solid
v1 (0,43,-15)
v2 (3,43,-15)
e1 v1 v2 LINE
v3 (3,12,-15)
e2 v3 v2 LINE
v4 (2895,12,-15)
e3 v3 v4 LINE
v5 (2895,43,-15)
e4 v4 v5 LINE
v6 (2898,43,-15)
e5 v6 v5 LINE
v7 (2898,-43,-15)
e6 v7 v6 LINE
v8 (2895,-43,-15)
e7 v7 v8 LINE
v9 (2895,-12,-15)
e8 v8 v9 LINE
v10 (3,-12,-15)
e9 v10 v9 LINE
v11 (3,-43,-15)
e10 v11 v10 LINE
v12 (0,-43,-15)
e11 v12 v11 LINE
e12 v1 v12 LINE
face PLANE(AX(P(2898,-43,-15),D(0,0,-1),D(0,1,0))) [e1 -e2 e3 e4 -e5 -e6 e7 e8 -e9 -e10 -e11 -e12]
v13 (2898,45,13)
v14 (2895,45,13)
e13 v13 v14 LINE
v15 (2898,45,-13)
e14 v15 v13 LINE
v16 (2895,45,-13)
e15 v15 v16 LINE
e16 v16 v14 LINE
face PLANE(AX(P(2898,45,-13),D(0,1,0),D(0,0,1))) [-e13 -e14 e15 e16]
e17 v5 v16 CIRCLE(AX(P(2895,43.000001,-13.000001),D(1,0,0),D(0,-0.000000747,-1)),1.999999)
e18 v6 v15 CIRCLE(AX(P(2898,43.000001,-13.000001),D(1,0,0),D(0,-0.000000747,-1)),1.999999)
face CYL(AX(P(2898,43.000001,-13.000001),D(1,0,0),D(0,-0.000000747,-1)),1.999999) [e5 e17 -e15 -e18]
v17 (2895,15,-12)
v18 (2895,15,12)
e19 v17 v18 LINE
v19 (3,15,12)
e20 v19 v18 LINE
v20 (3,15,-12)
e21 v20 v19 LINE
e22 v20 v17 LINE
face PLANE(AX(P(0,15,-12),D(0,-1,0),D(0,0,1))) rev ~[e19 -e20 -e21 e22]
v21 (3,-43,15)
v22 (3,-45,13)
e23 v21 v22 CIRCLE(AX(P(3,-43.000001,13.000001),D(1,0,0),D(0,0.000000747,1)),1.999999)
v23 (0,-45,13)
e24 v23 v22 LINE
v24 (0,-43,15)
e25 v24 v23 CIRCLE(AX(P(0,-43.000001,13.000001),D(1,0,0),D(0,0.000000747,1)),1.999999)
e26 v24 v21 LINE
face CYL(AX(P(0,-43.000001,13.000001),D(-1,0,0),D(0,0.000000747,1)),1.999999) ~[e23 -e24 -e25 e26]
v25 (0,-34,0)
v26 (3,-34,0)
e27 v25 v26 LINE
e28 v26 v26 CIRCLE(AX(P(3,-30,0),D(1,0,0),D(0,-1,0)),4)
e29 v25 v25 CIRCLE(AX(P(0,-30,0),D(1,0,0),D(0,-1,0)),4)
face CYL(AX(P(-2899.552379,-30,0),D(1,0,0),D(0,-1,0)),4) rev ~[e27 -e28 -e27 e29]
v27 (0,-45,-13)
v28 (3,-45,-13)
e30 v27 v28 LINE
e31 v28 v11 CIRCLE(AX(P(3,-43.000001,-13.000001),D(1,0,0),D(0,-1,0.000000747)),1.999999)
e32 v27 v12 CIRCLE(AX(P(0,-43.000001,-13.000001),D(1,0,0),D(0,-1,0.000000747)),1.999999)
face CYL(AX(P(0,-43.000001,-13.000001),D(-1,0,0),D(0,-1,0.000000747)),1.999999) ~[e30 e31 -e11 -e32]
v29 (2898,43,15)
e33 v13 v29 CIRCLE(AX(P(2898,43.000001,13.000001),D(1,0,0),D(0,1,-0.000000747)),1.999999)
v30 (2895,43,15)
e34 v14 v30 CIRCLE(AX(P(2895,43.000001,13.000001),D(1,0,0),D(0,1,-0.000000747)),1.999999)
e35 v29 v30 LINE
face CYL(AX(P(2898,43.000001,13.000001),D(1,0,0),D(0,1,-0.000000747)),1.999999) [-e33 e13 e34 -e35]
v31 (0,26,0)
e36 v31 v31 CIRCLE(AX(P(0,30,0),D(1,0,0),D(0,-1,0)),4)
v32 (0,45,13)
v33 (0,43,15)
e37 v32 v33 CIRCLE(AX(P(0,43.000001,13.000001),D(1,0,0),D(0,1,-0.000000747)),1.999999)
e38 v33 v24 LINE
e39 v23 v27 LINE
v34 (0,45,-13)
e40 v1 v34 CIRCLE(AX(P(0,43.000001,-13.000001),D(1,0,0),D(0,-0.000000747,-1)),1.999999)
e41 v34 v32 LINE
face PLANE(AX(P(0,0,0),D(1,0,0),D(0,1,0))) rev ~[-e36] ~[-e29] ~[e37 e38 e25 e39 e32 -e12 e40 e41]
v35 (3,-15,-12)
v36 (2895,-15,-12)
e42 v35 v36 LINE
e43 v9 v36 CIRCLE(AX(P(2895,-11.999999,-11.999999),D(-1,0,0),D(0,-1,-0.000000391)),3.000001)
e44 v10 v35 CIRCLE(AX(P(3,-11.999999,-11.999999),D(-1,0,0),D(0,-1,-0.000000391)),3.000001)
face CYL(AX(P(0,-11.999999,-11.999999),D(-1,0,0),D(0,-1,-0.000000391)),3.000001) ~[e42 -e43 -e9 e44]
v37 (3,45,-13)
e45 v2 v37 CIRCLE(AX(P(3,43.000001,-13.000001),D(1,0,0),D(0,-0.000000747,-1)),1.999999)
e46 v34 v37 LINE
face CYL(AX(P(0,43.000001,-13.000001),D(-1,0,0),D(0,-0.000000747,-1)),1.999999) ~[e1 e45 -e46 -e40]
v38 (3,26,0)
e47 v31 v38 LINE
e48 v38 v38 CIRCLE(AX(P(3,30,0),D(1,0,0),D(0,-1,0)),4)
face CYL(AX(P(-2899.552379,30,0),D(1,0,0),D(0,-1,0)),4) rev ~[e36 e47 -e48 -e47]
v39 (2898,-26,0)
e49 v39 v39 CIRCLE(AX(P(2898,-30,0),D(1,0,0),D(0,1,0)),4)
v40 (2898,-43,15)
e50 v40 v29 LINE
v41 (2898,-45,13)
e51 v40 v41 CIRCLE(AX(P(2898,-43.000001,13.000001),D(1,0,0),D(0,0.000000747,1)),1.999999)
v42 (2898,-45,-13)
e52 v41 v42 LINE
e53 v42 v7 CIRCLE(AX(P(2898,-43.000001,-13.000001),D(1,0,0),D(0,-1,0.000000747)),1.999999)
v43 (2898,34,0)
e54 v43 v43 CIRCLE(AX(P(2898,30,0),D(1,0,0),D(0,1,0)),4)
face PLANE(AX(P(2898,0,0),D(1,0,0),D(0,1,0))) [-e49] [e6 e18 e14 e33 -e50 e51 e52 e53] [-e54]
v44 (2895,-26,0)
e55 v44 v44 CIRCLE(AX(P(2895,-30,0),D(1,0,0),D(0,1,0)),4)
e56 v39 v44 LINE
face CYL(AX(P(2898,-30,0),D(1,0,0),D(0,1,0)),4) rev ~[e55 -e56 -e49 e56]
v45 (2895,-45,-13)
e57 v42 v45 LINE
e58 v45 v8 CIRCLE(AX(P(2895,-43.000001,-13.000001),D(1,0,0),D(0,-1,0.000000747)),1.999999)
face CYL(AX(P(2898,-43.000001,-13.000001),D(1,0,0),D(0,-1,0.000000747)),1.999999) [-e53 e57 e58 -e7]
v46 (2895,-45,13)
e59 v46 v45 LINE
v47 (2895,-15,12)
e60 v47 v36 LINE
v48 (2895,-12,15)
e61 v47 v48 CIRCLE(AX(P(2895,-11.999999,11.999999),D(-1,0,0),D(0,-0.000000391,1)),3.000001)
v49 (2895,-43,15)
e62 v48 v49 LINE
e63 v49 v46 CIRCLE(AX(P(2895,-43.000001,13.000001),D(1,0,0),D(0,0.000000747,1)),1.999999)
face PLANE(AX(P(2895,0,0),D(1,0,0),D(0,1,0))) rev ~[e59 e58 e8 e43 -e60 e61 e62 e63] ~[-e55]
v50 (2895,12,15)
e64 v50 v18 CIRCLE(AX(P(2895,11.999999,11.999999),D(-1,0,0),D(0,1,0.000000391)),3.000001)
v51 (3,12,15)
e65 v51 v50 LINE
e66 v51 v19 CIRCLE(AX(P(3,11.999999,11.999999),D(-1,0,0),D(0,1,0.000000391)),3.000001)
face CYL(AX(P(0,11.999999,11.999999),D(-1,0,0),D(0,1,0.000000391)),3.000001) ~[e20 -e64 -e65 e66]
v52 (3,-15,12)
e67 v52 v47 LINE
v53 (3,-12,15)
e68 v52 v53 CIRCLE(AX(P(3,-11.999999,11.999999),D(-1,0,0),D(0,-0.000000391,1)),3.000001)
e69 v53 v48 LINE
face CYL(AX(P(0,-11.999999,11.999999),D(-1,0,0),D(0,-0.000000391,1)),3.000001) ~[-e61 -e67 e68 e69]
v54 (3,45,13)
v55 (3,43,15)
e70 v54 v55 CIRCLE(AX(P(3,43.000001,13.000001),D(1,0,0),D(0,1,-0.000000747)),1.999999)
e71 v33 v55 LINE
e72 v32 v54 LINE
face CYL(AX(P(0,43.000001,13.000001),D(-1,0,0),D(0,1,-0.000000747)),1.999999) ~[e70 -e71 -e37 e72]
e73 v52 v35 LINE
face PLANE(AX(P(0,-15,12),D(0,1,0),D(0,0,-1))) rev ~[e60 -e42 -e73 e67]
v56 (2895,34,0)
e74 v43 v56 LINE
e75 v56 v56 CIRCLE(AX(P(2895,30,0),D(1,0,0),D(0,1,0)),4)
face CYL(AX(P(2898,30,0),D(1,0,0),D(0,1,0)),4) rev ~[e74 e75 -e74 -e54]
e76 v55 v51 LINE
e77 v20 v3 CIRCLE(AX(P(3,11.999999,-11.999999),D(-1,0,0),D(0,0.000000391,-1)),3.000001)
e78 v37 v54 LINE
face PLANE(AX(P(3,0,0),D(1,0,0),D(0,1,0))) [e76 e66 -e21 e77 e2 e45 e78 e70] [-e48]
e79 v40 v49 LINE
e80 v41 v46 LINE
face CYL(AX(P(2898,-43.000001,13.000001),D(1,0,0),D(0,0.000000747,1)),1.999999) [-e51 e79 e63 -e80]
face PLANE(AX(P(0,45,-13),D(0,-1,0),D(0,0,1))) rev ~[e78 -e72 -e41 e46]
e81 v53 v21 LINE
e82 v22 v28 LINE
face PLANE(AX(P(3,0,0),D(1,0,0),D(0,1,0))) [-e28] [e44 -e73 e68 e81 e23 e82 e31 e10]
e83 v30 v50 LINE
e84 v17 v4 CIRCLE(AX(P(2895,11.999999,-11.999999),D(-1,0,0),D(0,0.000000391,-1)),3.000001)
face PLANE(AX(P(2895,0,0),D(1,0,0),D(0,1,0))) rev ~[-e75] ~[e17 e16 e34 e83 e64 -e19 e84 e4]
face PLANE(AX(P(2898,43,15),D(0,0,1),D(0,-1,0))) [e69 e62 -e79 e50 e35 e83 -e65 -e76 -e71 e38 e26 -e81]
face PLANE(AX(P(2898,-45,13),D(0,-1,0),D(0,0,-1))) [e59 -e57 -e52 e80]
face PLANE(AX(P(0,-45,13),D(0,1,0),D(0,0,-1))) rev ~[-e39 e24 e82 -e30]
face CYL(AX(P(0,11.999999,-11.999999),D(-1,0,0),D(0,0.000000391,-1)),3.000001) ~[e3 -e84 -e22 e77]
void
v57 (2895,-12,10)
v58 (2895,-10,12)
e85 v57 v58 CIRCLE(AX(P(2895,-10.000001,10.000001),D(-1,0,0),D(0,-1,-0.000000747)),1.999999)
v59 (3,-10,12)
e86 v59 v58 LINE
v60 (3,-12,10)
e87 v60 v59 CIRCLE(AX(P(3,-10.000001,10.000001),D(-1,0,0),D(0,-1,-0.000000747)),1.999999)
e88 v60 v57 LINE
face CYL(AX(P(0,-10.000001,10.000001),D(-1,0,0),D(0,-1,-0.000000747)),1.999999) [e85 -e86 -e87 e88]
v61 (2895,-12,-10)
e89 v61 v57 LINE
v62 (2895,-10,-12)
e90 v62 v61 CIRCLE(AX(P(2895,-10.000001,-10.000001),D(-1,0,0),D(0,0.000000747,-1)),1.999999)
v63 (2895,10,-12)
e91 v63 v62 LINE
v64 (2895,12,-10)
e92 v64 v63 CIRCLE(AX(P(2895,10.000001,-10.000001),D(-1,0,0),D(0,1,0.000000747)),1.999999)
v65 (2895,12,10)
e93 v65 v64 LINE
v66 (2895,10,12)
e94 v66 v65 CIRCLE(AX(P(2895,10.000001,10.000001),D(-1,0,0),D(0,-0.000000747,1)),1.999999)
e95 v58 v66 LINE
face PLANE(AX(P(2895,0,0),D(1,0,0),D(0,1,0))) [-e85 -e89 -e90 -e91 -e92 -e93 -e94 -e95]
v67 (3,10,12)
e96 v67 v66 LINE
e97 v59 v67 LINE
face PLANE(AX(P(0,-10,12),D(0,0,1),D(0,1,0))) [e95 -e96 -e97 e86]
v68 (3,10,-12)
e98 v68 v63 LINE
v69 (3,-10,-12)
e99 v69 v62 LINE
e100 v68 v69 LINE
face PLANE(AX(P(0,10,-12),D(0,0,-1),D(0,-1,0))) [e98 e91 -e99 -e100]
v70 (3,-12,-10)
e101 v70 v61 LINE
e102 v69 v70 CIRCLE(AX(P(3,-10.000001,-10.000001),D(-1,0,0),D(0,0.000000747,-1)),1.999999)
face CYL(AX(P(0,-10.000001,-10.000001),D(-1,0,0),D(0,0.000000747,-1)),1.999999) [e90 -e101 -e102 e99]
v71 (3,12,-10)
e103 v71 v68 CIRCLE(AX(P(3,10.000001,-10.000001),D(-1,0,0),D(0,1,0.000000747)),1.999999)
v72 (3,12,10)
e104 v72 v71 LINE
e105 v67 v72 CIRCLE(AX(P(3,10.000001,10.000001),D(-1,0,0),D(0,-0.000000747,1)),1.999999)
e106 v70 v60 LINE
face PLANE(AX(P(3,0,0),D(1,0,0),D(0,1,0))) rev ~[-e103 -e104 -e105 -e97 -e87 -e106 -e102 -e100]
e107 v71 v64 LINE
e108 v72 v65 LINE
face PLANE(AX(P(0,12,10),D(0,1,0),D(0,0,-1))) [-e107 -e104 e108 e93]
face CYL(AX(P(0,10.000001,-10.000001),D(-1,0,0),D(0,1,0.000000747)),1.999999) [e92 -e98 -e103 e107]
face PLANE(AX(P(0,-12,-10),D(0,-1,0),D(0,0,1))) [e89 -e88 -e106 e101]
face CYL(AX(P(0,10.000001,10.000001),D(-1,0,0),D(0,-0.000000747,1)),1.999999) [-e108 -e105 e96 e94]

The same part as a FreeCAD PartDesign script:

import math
import FreeCAD as App
import Part
import Sketcher

V = App.Vector
Q = App.Units.Quantity

doc = App.newDocument("Part")
body = doc.addObject("PartDesign::Body", "Body")

sketch1 = body.newObject("Sketcher::SketchObject", "Sketch")
sketch1.AttachmentSupport = (doc.getObject("YZ_Plane"), [""])
sketch1.MapMode = "FlatFace"
sketch1.addGeometry(Part.LineSegment(V(-12, -15, 0), V(12, -15, 0)), False)
sketch1.addGeometry(Part.ArcOfCircle(Part.Circle(V(12, -12, 0), V(0, 0, 1), 3), math.radians(-90), math.radians(0)), False)
sketch1.addGeometry(Part.LineSegment(V(15, -12, 0), V(15, 12, 0)), False)
sketch1.addGeometry(Part.ArcOfCircle(Part.Circle(V(12, 12, 0), V(0, 0, 1), 3), math.radians(0), math.radians(90)), False)
sketch1.addGeometry(Part.LineSegment(V(12, 15, 0), V(-12, 15, 0)), False)
sketch1.addGeometry(Part.ArcOfCircle(Part.Circle(V(-12, 12, 0), V(0, 0, 1), 3), math.radians(90), math.radians(180)), False)
sketch1.addGeometry(Part.LineSegment(V(-15, 12, 0), V(-15, -12, 0)), False)
sketch1.addGeometry(Part.ArcOfCircle(Part.Circle(V(-12, -12, 0), V(0, 0, 1), 3), math.radians(-180), math.radians(-90)), False)
sketch1.addGeometry(Part.LineSegment(V(12, 10, 0), V(12, -10, 0)), False)
sketch1.addGeometry(Part.ArcOfCircle(Part.Circle(V(10, -10, 0), V(0, 0, 1), 2), math.radians(-90), math.radians(0)), False)
sketch1.addGeometry(Part.LineSegment(V(10, -12, 0), V(-10, -12, 0)), False)
sketch1.addGeometry(Part.ArcOfCircle(Part.Circle(V(-10, -10, 0), V(0, 0, 1), 2), math.radians(180), math.radians(270)), False)
sketch1.addGeometry(Part.LineSegment(V(-12, -10, 0), V(-12, 10, 0)), False)
sketch1.addGeometry(Part.ArcOfCircle(Part.Circle(V(-10, 10, 0), V(0, 0, 1), 2), math.radians(90), math.radians(180)), False)
sketch1.addGeometry(Part.LineSegment(V(-10, 12, 0), V(10, 12, 0)), False)
sketch1.addGeometry(Part.ArcOfCircle(Part.Circle(V(10, 10, 0), V(0, 0, 1), 2), math.radians(0), math.radians(90)), False)
sketch1.addConstraint(Sketcher.Constraint("Tangent", 0, 2, 1, 1))
sketch1.addConstraint(Sketcher.Constraint("Tangent", 1, 2, 2, 1))
sketch1.addConstraint(Sketcher.Constraint("Tangent", 2, 2, 3, 1))
sketch1.addConstraint(Sketcher.Constraint("Tangent", 3, 2, 4, 1))
sketch1.addConstraint(Sketcher.Constraint("Tangent", 4, 2, 5, 1))
sketch1.addConstraint(Sketcher.Constraint("Tangent", 5, 2, 6, 1))
sketch1.addConstraint(Sketcher.Constraint("Tangent", 6, 2, 7, 1))
sketch1.addConstraint(Sketcher.Constraint("Tangent", 7, 2, 0, 1))
sketch1.addConstraint(Sketcher.Constraint("Tangent", 8, 2, 9, 2))
sketch1.addConstraint(Sketcher.Constraint("Tangent", 9, 1, 10, 1))
sketch1.addConstraint(Sketcher.Constraint("Tangent", 10, 2, 11, 2))
sketch1.addConstraint(Sketcher.Constraint("Tangent", 11, 1, 12, 1))
sketch1.addConstraint(Sketcher.Constraint("Tangent", 12, 2, 13, 2))
sketch1.addConstraint(Sketcher.Constraint("Tangent", 13, 1, 14, 1))
sketch1.addConstraint(Sketcher.Constraint("Tangent", 14, 2, 15, 2))
sketch1.addConstraint(Sketcher.Constraint("Tangent", 15, 1, 8, 1))
sketch1.addConstraint(Sketcher.Constraint("Horizontal", 0))
sketch1.addConstraint(Sketcher.Constraint("Vertical", 2))
sketch1.addConstraint(Sketcher.Constraint("Horizontal", 4))
sketch1.addConstraint(Sketcher.Constraint("Vertical", 6))
sketch1.addConstraint(Sketcher.Constraint("Vertical", 8))
sketch1.addConstraint(Sketcher.Constraint("Horizontal", 10))
sketch1.addConstraint(Sketcher.Constraint("Vertical", 12))
sketch1.addConstraint(Sketcher.Constraint("Horizontal", 14))
sketch1.addConstraint(Sketcher.Constraint("Equal", 1, 3))
sketch1.addConstraint(Sketcher.Constraint("Equal", 3, 5))
sketch1.addConstraint(Sketcher.Constraint("Equal", 5, 7))
sketch1.addConstraint(Sketcher.Constraint("Equal", 9, 11))
sketch1.addConstraint(Sketcher.Constraint("Equal", 11, 13))
sketch1.addConstraint(Sketcher.Constraint("Equal", 13, 15))
sketch1.addConstraint(Sketcher.Constraint("Symmetric", 1, 3, 5, 3, -1, 1))
sketch1.addConstraint(Sketcher.Constraint("Symmetric", 9, 3, 13, 3, -1, 1))
sketch1.addConstraint(Sketcher.Constraint("Horizontal", 6, 2, 9, 1))
sketch1.addConstraint(Sketcher.Constraint("Vertical", 3, 2, 8, 2))
sketch1.addConstraint(Sketcher.Constraint("Equal", 4, 2))
sketch1.addConstraint(Sketcher.Constraint("Radius", 1, Q("3.000001 mm")))
sketch1.addConstraint(Sketcher.Constraint("Radius", 9, Q("1.999999 mm")))
sketch1.addConstraint(Sketcher.Constraint("DistanceX", 0, 1, 0, 2, Q("24 mm")))
pad1 = body.newObject("PartDesign::Pad", "Pad")
pad1.Profile = sketch1
pad1.Length = 2898

sketch2 = body.newObject("Sketcher::SketchObject", "Sketch001")
sketch2.AttachmentSupport = (doc.getObject("YZ_Plane"), [""])
sketch2.MapMode = "FlatFace"
sketch2.addGeometry(Part.ArcOfCircle(Part.Circle(V(43, 13, 0), V(0, 0, 1), 2), math.radians(0), math.radians(90)), False)
sketch2.addGeometry(Part.LineSegment(V(43, 15, 0), V(-43, 15, 0)), False)
sketch2.addGeometry(Part.ArcOfCircle(Part.Circle(V(-43, 13, 0), V(0, 0, 1), 2), math.radians(90), math.radians(180)), False)
sketch2.addGeometry(Part.LineSegment(V(-45, 13, 0), V(-45, -13, 0)), False)
sketch2.addGeometry(Part.ArcOfCircle(Part.Circle(V(-43, -13, 0), V(0, 0, 1), 2), math.radians(180), math.radians(270)), False)
sketch2.addGeometry(Part.LineSegment(V(-43, -15, 0), V(43, -15, 0)), False)
sketch2.addGeometry(Part.ArcOfCircle(Part.Circle(V(43, -13, 0), V(0, 0, 1), 2), math.radians(-90), math.radians(0)), False)
sketch2.addGeometry(Part.LineSegment(V(45, -13, 0), V(45, 13, 0)), False)
sketch2.addConstraint(Sketcher.Constraint("Tangent", 0, 2, 1, 1))
sketch2.addConstraint(Sketcher.Constraint("Tangent", 1, 2, 2, 1))
sketch2.addConstraint(Sketcher.Constraint("Tangent", 2, 2, 3, 1))
sketch2.addConstraint(Sketcher.Constraint("Tangent", 3, 2, 4, 1))
sketch2.addConstraint(Sketcher.Constraint("Tangent", 4, 2, 5, 1))
sketch2.addConstraint(Sketcher.Constraint("Tangent", 5, 2, 6, 1))
sketch2.addConstraint(Sketcher.Constraint("Tangent", 6, 2, 7, 1))
sketch2.addConstraint(Sketcher.Constraint("Tangent", 7, 2, 0, 1))
sketch2.addConstraint(Sketcher.Constraint("Horizontal", 1))
sketch2.addConstraint(Sketcher.Constraint("Vertical", 3))
sketch2.addConstraint(Sketcher.Constraint("Horizontal", 5))
sketch2.addConstraint(Sketcher.Constraint("Vertical", 7))
sketch2.addConstraint(Sketcher.Constraint("Equal", 0, 2))
sketch2.addConstraint(Sketcher.Constraint("Equal", 2, 4))
sketch2.addConstraint(Sketcher.Constraint("Equal", 4, 6))
sketch2.addConstraint(Sketcher.Constraint("Symmetric", 0, 3, 4, 3, -1, 1))
sketch2.addConstraint(Sketcher.Constraint("Radius", 0, Q("1.999999 mm")))
sketch2.addConstraint(Sketcher.Constraint("DistanceX", 1, 2, 1, 1, Q("86 mm")))
sketch2.addConstraint(Sketcher.Constraint("DistanceY", 3, 2, 3, 1, Q("26 mm")))
pad2 = body.newObject("PartDesign::Pad", "Pad001")
pad2.Profile = sketch2
pad2.Length = 3

sketch3 = body.newObject("Sketcher::SketchObject", "Sketch002")
sketch3.AttachmentSupport = (doc.getObject("YZ_Plane"), [""])
sketch3.MapMode = "FlatFace"
sketch3.addGeometry(Part.Circle(V(30, 0, 0), V(0, 0, 1), 4), False)
sketch3.addGeometry(Part.Circle(V(-30, 0, 0), V(0, 0, 1), 4), False)
sketch3.addConstraint(Sketcher.Constraint("Equal", 0, 1))
sketch3.addConstraint(Sketcher.Constraint("Symmetric", 0, 3, 1, 3, -1, 1))
sketch3.addConstraint(Sketcher.Constraint("PointOnObject", 0, 3, -1))
sketch3.addConstraint(Sketcher.Constraint("Diameter", 0, Q("8 mm")))
sketch3.addConstraint(Sketcher.Constraint("DistanceX", -1, 1, 0, 3, Q("30 mm")))
doc.recompute()
hole = body.newObject("PartDesign::Hole", "Hole")
hole.Profile = sketch3
hole.ThreadType = "None"
hole.Diameter = 8
hole.DepthType = "ThroughAll"
hole.Reversed = True

sketch4 = body.newObject("Sketcher::SketchObject", "Sketch003")
sketch4.AttachmentSupport = (doc.getObject("YZ_Plane"), [""])
sketch4.MapMode = "FlatFace"
sketch4.AttachmentOffset = App.Placement(V(0, 0, 2898), App.Rotation())
sketch4.addGeometry(Part.ArcOfCircle(Part.Circle(V(43, 13, 0), V(0, 0, 1), 2), math.radians(0), math.radians(90)), False)
sketch4.addGeometry(Part.LineSegment(V(43, 15, 0), V(-43, 15, 0)), False)
sketch4.addGeometry(Part.ArcOfCircle(Part.Circle(V(-43, 13, 0), V(0, 0, 1), 2), math.radians(90), math.radians(180)), False)
sketch4.addGeometry(Part.LineSegment(V(-45, 13, 0), V(-45, -13, 0)), False)
sketch4.addGeometry(Part.ArcOfCircle(Part.Circle(V(-43, -13, 0), V(0, 0, 1), 2), math.radians(180), math.radians(270)), False)
sketch4.addGeometry(Part.LineSegment(V(-43, -15, 0), V(43, -15, 0)), False)
sketch4.addGeometry(Part.ArcOfCircle(Part.Circle(V(43, -13, 0), V(0, 0, 1), 2), math.radians(-90), math.radians(0)), False)
sketch4.addGeometry(Part.LineSegment(V(45, -13, 0), V(45, 13, 0)), False)
sketch4.addGeometry(Part.Circle(V(-30, 0, 0), V(0, 0, 1), 4), False)
sketch4.addGeometry(Part.Circle(V(30, 0, 0), V(0, 0, 1), 4), False)
sketch4.addConstraint(Sketcher.Constraint("Tangent", 0, 2, 1, 1))
sketch4.addConstraint(Sketcher.Constraint("Tangent", 1, 2, 2, 1))
sketch4.addConstraint(Sketcher.Constraint("Tangent", 2, 2, 3, 1))
sketch4.addConstraint(Sketcher.Constraint("Tangent", 3, 2, 4, 1))
sketch4.addConstraint(Sketcher.Constraint("Tangent", 4, 2, 5, 1))
sketch4.addConstraint(Sketcher.Constraint("Tangent", 5, 2, 6, 1))
sketch4.addConstraint(Sketcher.Constraint("Tangent", 6, 2, 7, 1))
sketch4.addConstraint(Sketcher.Constraint("Tangent", 7, 2, 0, 1))
sketch4.addConstraint(Sketcher.Constraint("Horizontal", 1))
sketch4.addConstraint(Sketcher.Constraint("Vertical", 3))
sketch4.addConstraint(Sketcher.Constraint("Horizontal", 5))
sketch4.addConstraint(Sketcher.Constraint("Vertical", 7))
sketch4.addConstraint(Sketcher.Constraint("Equal", 0, 2))
sketch4.addConstraint(Sketcher.Constraint("Equal", 2, 4))
sketch4.addConstraint(Sketcher.Constraint("Equal", 4, 6))
sketch4.addConstraint(Sketcher.Constraint("Equal", 8, 9))
sketch4.addConstraint(Sketcher.Constraint("Symmetric", 0, 3, 4, 3, -1, 1))
sketch4.addConstraint(Sketcher.Constraint("Symmetric", 8, 3, 9, 3, -1, 1))
sketch4.addConstraint(Sketcher.Constraint("PointOnObject", 8, 3, -1))
sketch4.addConstraint(Sketcher.Constraint("Diameter", 8, Q("8 mm")))
sketch4.addConstraint(Sketcher.Constraint("Radius", 0, Q("1.999999 mm")))
sketch4.addConstraint(Sketcher.Constraint("DistanceX", 1, 2, 1, 1, Q("86 mm")))
sketch4.addConstraint(Sketcher.Constraint("DistanceY", 3, 2, 3, 1, Q("26 mm")))
sketch4.addConstraint(Sketcher.Constraint("DistanceX", 8, 3, -1, 1, Q("30 mm")))
pad3 = body.newObject("PartDesign::Pad", "Pad002")
pad3.Profile = sketch4
pad3.Length = 3
pad3.Reversed = True

doc.recompute()
